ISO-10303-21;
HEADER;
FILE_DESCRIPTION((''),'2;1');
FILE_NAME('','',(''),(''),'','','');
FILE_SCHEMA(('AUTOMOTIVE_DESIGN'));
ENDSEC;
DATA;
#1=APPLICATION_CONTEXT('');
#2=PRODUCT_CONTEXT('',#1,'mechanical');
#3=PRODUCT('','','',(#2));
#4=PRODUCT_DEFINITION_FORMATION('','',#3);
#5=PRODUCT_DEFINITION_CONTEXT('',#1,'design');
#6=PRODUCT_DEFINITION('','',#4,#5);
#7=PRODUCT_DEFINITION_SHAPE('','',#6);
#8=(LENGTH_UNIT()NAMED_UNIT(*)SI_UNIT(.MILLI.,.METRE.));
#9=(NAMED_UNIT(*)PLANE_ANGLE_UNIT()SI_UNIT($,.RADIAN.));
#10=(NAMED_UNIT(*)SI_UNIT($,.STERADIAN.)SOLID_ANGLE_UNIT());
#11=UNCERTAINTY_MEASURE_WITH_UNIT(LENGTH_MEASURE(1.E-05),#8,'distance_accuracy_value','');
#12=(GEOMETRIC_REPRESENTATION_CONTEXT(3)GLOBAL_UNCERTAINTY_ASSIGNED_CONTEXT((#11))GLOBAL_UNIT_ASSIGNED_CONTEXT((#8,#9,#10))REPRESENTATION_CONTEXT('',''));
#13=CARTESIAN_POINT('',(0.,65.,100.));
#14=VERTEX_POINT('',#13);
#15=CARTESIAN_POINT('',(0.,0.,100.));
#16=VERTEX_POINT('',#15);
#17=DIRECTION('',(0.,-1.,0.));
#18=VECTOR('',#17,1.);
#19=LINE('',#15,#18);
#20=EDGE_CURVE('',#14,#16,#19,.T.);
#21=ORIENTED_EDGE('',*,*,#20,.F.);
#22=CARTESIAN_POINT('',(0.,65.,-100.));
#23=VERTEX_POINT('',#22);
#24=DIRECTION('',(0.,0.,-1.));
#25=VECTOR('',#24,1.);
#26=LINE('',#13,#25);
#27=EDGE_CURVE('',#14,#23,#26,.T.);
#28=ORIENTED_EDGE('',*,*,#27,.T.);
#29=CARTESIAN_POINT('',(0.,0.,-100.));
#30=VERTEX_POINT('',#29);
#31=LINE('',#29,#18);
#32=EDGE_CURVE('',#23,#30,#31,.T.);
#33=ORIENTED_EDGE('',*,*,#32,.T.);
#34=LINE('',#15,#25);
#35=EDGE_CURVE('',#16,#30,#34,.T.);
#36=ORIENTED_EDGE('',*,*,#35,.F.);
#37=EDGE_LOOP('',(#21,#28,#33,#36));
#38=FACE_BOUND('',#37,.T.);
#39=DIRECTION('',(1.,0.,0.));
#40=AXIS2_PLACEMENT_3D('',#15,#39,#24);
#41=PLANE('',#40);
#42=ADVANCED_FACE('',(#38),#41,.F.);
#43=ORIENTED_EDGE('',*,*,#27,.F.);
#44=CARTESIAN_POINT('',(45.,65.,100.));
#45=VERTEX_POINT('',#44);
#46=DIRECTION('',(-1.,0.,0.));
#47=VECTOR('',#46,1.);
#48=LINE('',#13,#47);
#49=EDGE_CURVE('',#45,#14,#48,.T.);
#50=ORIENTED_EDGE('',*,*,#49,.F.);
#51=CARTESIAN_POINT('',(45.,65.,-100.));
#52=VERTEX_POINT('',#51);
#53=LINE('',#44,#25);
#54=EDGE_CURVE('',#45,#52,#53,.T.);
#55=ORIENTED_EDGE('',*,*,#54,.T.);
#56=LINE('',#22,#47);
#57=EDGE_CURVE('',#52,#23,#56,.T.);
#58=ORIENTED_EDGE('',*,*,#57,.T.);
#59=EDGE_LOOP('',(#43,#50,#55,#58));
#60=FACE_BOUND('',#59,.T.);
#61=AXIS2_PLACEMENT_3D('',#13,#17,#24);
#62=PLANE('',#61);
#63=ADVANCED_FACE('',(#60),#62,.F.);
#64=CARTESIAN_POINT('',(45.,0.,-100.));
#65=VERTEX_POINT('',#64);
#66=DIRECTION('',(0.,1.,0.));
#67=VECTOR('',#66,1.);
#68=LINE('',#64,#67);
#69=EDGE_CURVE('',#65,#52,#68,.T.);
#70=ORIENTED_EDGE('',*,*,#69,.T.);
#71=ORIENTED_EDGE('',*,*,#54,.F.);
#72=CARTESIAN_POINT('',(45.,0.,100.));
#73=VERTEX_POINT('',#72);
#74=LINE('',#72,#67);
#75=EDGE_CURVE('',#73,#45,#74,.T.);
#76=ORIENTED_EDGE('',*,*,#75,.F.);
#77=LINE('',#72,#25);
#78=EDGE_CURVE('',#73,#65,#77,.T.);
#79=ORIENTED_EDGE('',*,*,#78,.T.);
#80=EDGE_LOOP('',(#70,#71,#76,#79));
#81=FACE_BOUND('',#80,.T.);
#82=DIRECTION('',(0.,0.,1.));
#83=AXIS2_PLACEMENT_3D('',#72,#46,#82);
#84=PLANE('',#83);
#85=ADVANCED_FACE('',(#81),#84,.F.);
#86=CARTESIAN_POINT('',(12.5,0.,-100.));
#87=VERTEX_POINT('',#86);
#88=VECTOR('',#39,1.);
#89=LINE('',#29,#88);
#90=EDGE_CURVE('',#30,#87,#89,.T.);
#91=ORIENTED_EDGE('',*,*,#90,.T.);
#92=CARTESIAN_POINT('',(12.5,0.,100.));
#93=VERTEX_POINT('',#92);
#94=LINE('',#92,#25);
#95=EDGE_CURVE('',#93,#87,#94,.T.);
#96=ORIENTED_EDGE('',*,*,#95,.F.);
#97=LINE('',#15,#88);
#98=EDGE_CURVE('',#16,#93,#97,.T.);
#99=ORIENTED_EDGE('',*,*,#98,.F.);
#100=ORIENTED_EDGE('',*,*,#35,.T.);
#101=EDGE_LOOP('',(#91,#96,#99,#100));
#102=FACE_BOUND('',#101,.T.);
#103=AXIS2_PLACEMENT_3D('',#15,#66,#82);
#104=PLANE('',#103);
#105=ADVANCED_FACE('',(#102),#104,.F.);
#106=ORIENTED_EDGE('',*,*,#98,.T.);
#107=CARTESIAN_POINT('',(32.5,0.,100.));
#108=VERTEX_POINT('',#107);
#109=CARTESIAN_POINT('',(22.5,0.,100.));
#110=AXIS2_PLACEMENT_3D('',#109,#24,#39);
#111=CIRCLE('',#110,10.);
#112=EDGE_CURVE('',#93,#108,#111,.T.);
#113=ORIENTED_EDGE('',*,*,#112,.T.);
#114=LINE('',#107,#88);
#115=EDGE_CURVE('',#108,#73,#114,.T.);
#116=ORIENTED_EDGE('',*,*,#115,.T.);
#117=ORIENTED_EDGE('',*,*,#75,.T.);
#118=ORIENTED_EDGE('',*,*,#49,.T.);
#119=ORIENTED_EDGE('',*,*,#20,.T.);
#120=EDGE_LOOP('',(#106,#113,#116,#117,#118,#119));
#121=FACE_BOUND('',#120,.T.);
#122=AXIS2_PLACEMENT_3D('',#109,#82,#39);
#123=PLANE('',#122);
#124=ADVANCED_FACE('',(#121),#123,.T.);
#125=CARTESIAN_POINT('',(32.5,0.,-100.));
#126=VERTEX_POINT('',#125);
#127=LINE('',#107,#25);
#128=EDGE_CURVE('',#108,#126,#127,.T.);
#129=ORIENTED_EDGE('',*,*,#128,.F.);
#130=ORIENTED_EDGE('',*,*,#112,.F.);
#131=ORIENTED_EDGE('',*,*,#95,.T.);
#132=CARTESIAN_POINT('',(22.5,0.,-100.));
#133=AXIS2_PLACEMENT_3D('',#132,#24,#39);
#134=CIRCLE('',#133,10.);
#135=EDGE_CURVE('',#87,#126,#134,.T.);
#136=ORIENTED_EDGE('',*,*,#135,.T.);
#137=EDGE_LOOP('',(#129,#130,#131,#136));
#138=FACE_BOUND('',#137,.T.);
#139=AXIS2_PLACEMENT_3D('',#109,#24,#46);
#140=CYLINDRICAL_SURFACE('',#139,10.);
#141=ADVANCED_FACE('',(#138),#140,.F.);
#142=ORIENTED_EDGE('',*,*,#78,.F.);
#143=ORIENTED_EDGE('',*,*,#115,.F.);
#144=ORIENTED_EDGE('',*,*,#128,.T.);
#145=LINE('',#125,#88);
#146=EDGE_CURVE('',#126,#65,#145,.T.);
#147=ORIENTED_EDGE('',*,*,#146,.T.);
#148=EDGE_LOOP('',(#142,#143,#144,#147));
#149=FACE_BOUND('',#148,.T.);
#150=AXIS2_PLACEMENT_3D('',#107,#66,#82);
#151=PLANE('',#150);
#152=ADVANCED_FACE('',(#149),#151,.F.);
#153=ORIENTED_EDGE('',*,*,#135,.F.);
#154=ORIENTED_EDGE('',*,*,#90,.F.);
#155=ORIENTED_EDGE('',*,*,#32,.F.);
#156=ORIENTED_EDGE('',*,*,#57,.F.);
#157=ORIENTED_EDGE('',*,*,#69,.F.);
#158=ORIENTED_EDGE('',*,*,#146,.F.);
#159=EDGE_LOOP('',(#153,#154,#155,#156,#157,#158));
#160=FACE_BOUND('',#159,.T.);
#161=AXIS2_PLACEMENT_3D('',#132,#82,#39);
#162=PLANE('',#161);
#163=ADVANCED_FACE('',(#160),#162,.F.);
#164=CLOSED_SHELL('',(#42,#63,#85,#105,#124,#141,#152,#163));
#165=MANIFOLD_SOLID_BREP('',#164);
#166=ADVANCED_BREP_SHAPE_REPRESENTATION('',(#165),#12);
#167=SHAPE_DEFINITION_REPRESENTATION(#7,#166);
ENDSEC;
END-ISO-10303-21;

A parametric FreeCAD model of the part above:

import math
import FreeCAD as App
import Part
import Sketcher

doc = App.newDocument("Part")
params = doc.addObject("Spreadsheet::Sheet", "Params")
for row, (alias, value) in enumerate([
    ("sketch1_radius", "10 mm"),
    ("sketch1_width", "45 mm"),
    ("sketch1_height", "65 mm"),
    ("pad1_length", "200 mm"),
], start=1):
    params.set(f"A{row}", alias)
    params.set(f"B{row}", "=" + value)
    params.setAlias(f"B{row}", alias)

body = doc.addObject("PartDesign::Body", "Body")

# Sketch on XY plane
sketch1 = body.newObject("Sketcher::SketchObject", "Sketch")
sketch1.AttachmentSupport = (doc.getObject("XY_Plane"), [""])
sketch1.MapMode = "FlatFace"
sketch1.addGeometry([
    Part.LineSegment(App.Vector(32, 0, 0), App.Vector(45, 0, 0)),  # 0
    Part.LineSegment(App.Vector(45, 0, 0), App.Vector(45, 65, 0)),  # 1
    Part.LineSegment(App.Vector(45, 65, 0), App.Vector(0, 65, 0)),  # 2
    Part.LineSegment(App.Vector(0, 65, 0), App.Vector(0, 0, 0)),  # 3
    Part.LineSegment(App.Vector(0, 0, 0), App.Vector(12, 0, 0)),  # 4
    Part.ArcOfCircle(Part.Circle(App.Vector(22, 0, 0), App.Vector(0, 0, 1), 10), math.radians(0), math.radians(180)),  # 5
], False)
sketch1.addConstraint([
    Sketcher.Constraint("Coincident", 0, 2, 1, 1),
    Sketcher.Constraint("Coincident", 1, 2, 2, 1),
    Sketcher.Constraint("Coincident", 2, 2, 3, 1),
    Sketcher.Constraint("Coincident", 3, 2, 4, 1),
    Sketcher.Constraint("Coincident", 4, 2, 5, 2),
    Sketcher.Constraint("Coincident", 5, 1, 0, 1),
    Sketcher.Constraint("Horizontal", 0),
    Sketcher.Constraint("Vertical", 1),
    Sketcher.Constraint("Horizontal", 2),
    Sketcher.Constraint("Vertical", 3),
    Sketcher.Constraint("Horizontal", 4),
    Sketcher.Constraint("Coincident", 3, 2, -1, 1),
    Sketcher.Constraint("PointOnObject", 5, 3, -1),
    Sketcher.Constraint("PointOnObject", 0, 2, -1),
    Sketcher.Constraint("Equal", 0, 4),
    Sketcher.Constraint("Radius", 5, 10.0),
    Sketcher.Constraint("DistanceX", 2, 2, 2, 1, 45.0),
    Sketcher.Constraint("DistanceY", 1, 1, 1, 2, 65.0),
])
sketch1.setExpression("Constraints[15]", "Params.sketch1_radius")
sketch1.setExpression("Constraints[16]", "Params.sketch1_width")
sketch1.setExpression("Constraints[17]", "Params.sketch1_height")
pad1 = body.newObject("PartDesign::Pad", "Pad")
pad1.Profile = sketch1
pad1.setExpression("Length", "Params.pad1_length")
pad1.Midplane = True

doc.recompute()
